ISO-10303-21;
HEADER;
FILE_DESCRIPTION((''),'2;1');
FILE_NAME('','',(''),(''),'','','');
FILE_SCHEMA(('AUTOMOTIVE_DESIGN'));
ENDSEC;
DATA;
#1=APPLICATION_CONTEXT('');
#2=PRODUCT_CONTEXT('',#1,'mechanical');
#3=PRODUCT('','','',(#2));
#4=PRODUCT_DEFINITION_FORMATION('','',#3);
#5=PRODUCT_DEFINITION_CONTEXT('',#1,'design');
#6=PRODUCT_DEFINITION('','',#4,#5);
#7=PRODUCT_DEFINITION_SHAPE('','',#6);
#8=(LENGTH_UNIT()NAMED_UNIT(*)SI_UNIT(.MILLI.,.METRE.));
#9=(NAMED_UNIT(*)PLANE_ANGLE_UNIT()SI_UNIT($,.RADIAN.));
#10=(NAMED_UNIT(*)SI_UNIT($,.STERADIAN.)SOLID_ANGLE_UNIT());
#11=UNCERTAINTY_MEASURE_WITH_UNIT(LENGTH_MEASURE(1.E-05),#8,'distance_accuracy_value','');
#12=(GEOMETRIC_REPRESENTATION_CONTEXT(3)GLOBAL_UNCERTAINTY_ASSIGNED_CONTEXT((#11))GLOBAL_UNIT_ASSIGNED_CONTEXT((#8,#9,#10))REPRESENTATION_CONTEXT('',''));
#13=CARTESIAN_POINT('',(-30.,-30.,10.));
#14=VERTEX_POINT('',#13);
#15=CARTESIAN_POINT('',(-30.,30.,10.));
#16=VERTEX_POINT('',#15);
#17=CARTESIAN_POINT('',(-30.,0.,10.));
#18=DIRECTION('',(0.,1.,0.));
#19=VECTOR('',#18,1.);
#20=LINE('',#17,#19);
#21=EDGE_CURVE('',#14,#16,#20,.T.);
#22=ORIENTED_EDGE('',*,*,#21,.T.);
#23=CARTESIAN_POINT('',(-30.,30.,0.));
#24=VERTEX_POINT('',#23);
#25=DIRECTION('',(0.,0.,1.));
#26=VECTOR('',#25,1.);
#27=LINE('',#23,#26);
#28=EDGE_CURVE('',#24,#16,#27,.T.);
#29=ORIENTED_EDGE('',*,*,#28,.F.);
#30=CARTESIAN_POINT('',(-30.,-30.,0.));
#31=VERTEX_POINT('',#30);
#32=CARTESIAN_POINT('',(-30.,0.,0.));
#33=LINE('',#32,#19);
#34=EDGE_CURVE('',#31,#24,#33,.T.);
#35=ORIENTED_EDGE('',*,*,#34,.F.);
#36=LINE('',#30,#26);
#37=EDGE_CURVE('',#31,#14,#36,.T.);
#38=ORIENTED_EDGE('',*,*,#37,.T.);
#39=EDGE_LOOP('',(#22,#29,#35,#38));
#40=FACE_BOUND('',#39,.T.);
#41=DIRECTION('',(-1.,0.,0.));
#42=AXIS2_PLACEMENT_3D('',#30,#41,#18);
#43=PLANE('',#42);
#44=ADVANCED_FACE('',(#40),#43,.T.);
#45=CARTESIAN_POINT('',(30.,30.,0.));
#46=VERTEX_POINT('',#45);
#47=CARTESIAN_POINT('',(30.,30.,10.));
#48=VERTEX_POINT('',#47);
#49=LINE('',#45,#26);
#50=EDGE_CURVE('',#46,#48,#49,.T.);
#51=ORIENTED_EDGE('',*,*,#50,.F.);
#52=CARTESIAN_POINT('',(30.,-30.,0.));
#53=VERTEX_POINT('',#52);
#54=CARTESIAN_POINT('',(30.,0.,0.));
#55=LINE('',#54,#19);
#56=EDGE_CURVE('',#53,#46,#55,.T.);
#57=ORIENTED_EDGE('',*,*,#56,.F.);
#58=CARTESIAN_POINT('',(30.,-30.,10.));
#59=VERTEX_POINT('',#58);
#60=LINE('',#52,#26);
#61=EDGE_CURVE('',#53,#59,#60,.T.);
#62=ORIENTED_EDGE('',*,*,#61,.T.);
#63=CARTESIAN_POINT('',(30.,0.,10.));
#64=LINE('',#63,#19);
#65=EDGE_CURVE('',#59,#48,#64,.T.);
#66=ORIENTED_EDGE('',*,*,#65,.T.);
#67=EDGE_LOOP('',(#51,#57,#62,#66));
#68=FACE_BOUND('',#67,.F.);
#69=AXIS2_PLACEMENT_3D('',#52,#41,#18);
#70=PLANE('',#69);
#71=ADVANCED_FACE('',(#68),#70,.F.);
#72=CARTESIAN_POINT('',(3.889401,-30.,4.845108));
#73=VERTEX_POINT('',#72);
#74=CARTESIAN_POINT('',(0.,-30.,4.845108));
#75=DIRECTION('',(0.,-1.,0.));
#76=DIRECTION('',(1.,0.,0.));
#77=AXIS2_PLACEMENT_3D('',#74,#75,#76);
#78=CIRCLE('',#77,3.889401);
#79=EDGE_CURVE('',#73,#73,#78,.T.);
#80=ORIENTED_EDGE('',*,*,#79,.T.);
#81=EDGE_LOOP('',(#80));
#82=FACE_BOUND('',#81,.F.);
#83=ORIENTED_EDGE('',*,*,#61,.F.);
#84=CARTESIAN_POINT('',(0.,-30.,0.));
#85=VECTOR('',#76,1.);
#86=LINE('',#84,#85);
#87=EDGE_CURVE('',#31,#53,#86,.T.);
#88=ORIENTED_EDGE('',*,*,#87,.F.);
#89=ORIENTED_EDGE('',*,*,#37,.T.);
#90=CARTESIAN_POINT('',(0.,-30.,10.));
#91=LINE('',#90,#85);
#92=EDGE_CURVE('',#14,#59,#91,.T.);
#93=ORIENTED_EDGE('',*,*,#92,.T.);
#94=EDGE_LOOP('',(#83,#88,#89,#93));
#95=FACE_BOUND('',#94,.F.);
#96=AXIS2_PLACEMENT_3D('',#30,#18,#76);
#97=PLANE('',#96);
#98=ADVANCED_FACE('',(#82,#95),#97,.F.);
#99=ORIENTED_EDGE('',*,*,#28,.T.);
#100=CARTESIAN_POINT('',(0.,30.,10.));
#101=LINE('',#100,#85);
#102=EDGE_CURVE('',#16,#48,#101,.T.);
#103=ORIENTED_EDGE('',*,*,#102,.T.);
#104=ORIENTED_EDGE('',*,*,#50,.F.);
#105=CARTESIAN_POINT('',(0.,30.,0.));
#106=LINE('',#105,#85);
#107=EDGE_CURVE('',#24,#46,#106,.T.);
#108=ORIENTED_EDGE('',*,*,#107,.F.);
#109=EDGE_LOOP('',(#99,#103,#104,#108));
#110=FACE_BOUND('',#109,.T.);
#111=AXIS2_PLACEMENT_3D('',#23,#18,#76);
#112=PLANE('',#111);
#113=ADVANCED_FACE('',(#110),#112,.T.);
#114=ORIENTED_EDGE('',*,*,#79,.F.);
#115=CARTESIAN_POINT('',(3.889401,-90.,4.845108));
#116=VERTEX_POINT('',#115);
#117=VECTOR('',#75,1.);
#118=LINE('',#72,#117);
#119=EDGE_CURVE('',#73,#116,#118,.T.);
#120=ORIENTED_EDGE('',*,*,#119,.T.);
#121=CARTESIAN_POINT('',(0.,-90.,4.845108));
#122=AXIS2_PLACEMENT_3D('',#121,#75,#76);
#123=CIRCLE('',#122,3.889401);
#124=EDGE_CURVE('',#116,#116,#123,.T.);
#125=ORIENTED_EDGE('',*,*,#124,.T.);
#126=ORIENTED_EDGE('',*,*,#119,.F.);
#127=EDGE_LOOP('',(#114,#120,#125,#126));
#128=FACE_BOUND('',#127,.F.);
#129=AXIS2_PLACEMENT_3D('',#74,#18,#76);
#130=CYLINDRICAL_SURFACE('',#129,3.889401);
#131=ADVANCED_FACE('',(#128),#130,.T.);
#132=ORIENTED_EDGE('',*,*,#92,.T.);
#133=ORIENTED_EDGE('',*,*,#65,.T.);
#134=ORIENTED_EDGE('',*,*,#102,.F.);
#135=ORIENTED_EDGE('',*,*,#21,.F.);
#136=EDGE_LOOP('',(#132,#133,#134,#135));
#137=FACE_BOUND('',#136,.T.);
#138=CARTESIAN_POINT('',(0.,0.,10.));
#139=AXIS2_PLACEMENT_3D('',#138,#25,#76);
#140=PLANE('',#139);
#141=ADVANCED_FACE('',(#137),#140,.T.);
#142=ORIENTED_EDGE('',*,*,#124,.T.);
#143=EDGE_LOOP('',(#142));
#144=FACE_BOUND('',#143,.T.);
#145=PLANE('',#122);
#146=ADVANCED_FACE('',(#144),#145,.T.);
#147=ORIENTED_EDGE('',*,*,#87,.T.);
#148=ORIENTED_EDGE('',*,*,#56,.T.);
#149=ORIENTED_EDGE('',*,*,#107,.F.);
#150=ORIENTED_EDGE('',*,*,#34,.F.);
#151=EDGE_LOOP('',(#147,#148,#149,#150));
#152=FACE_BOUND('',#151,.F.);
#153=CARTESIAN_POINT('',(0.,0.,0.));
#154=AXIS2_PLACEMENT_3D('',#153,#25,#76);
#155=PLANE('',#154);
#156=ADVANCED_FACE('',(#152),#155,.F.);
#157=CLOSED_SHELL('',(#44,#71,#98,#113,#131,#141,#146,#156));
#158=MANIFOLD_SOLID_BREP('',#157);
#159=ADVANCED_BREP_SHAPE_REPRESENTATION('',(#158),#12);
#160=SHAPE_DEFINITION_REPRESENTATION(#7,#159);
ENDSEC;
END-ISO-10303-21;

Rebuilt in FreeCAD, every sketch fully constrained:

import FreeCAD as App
import Part
import Sketcher
Q = App.Units.Quantity

doc = App.newDocument("Part")
body = doc.addObject("PartDesign::Body", "Body")

sketch1 = body.newObject("Sketcher::SketchObject", "Sketch")
sketch1.AttachmentSupport = (doc.getObject("XY_Plane"), [""])
sketch1.MapMode = "FlatFace"
sketch1.addGeometry(Part.LineSegment(App.Vector(-30, 30, 0), App.Vector(-30, -30, 0)), False)
sketch1.addGeometry(Part.LineSegment(App.Vector(-30, -30, 0), App.Vector(30, -30, 0)), False)
sketch1.addGeometry(Part.LineSegment(App.Vector(30, -30, 0), App.Vector(30, 30, 0)), False)
sketch1.addGeometry(Part.LineSegment(App.Vector(30, 30, 0), App.Vector(-30, 30, 0)), False)
sketch1.addConstraint(Sketcher.Constraint("Coincident", 0, 2, 1, 1))
sketch1.addConstraint(Sketcher.Constraint("Coincident", 1, 2, 2, 1))
sketch1.addConstraint(Sketcher.Constraint("Coincident", 2, 2, 3, 1))
sketch1.addConstraint(Sketcher.Constraint("Coincident", 3, 2, 0, 1))
sketch1.addConstraint(Sketcher.Constraint("Vertical", 0))
sketch1.addConstraint(Sketcher.Constraint("Horizontal", 1))
sketch1.addConstraint(Sketcher.Constraint("Vertical", 2))
sketch1.addConstraint(Sketcher.Constraint("Horizontal", 3))
sketch1.addConstraint(Sketcher.Constraint("Symmetric", 0, 2, 2, 2, -1, 1))
sketch1.addConstraint(Sketcher.Constraint("Equal", 3, 0))
sketch1.addConstraint(Sketcher.Constraint("DistanceX", 1, 1, 1, 2, Q("60 mm")))
pad1 = body.newObject("PartDesign::Pad", "Pad")
pad1.Profile = sketch1
pad1.Length = 10

sketch2 = body.newObject("Sketcher::SketchObject", "Sketch001")
sketch2.AttachmentSupport = (doc.getObject("XZ_Plane"), [""])
sketch2.MapMode = "FlatFace"
sketch2.AttachmentOffset = App.Placement(App.Vector(0, 0, 30), App.Rotation())
sketch2.addGeometry(Part.Circle(App.Vector(0, 4.845108, 0), App.Vector(0, 0, 1), 3.889401), False)
sketch2.addConstraint(Sketcher.Constraint("PointOnObject", 0, 3, -2))
sketch2.addConstraint(Sketcher.Constraint("Diameter", 0, Q("7.778802 mm")))
sketch2.addConstraint(Sketcher.Constraint("DistanceY", -1, 1, 0, 3, Q("4.845108 mm")))
pad2 = body.newObject("PartDesign::Pad", "Pad001")
pad2.Profile = sketch2
pad2.Length = 60

doc.recompute()
